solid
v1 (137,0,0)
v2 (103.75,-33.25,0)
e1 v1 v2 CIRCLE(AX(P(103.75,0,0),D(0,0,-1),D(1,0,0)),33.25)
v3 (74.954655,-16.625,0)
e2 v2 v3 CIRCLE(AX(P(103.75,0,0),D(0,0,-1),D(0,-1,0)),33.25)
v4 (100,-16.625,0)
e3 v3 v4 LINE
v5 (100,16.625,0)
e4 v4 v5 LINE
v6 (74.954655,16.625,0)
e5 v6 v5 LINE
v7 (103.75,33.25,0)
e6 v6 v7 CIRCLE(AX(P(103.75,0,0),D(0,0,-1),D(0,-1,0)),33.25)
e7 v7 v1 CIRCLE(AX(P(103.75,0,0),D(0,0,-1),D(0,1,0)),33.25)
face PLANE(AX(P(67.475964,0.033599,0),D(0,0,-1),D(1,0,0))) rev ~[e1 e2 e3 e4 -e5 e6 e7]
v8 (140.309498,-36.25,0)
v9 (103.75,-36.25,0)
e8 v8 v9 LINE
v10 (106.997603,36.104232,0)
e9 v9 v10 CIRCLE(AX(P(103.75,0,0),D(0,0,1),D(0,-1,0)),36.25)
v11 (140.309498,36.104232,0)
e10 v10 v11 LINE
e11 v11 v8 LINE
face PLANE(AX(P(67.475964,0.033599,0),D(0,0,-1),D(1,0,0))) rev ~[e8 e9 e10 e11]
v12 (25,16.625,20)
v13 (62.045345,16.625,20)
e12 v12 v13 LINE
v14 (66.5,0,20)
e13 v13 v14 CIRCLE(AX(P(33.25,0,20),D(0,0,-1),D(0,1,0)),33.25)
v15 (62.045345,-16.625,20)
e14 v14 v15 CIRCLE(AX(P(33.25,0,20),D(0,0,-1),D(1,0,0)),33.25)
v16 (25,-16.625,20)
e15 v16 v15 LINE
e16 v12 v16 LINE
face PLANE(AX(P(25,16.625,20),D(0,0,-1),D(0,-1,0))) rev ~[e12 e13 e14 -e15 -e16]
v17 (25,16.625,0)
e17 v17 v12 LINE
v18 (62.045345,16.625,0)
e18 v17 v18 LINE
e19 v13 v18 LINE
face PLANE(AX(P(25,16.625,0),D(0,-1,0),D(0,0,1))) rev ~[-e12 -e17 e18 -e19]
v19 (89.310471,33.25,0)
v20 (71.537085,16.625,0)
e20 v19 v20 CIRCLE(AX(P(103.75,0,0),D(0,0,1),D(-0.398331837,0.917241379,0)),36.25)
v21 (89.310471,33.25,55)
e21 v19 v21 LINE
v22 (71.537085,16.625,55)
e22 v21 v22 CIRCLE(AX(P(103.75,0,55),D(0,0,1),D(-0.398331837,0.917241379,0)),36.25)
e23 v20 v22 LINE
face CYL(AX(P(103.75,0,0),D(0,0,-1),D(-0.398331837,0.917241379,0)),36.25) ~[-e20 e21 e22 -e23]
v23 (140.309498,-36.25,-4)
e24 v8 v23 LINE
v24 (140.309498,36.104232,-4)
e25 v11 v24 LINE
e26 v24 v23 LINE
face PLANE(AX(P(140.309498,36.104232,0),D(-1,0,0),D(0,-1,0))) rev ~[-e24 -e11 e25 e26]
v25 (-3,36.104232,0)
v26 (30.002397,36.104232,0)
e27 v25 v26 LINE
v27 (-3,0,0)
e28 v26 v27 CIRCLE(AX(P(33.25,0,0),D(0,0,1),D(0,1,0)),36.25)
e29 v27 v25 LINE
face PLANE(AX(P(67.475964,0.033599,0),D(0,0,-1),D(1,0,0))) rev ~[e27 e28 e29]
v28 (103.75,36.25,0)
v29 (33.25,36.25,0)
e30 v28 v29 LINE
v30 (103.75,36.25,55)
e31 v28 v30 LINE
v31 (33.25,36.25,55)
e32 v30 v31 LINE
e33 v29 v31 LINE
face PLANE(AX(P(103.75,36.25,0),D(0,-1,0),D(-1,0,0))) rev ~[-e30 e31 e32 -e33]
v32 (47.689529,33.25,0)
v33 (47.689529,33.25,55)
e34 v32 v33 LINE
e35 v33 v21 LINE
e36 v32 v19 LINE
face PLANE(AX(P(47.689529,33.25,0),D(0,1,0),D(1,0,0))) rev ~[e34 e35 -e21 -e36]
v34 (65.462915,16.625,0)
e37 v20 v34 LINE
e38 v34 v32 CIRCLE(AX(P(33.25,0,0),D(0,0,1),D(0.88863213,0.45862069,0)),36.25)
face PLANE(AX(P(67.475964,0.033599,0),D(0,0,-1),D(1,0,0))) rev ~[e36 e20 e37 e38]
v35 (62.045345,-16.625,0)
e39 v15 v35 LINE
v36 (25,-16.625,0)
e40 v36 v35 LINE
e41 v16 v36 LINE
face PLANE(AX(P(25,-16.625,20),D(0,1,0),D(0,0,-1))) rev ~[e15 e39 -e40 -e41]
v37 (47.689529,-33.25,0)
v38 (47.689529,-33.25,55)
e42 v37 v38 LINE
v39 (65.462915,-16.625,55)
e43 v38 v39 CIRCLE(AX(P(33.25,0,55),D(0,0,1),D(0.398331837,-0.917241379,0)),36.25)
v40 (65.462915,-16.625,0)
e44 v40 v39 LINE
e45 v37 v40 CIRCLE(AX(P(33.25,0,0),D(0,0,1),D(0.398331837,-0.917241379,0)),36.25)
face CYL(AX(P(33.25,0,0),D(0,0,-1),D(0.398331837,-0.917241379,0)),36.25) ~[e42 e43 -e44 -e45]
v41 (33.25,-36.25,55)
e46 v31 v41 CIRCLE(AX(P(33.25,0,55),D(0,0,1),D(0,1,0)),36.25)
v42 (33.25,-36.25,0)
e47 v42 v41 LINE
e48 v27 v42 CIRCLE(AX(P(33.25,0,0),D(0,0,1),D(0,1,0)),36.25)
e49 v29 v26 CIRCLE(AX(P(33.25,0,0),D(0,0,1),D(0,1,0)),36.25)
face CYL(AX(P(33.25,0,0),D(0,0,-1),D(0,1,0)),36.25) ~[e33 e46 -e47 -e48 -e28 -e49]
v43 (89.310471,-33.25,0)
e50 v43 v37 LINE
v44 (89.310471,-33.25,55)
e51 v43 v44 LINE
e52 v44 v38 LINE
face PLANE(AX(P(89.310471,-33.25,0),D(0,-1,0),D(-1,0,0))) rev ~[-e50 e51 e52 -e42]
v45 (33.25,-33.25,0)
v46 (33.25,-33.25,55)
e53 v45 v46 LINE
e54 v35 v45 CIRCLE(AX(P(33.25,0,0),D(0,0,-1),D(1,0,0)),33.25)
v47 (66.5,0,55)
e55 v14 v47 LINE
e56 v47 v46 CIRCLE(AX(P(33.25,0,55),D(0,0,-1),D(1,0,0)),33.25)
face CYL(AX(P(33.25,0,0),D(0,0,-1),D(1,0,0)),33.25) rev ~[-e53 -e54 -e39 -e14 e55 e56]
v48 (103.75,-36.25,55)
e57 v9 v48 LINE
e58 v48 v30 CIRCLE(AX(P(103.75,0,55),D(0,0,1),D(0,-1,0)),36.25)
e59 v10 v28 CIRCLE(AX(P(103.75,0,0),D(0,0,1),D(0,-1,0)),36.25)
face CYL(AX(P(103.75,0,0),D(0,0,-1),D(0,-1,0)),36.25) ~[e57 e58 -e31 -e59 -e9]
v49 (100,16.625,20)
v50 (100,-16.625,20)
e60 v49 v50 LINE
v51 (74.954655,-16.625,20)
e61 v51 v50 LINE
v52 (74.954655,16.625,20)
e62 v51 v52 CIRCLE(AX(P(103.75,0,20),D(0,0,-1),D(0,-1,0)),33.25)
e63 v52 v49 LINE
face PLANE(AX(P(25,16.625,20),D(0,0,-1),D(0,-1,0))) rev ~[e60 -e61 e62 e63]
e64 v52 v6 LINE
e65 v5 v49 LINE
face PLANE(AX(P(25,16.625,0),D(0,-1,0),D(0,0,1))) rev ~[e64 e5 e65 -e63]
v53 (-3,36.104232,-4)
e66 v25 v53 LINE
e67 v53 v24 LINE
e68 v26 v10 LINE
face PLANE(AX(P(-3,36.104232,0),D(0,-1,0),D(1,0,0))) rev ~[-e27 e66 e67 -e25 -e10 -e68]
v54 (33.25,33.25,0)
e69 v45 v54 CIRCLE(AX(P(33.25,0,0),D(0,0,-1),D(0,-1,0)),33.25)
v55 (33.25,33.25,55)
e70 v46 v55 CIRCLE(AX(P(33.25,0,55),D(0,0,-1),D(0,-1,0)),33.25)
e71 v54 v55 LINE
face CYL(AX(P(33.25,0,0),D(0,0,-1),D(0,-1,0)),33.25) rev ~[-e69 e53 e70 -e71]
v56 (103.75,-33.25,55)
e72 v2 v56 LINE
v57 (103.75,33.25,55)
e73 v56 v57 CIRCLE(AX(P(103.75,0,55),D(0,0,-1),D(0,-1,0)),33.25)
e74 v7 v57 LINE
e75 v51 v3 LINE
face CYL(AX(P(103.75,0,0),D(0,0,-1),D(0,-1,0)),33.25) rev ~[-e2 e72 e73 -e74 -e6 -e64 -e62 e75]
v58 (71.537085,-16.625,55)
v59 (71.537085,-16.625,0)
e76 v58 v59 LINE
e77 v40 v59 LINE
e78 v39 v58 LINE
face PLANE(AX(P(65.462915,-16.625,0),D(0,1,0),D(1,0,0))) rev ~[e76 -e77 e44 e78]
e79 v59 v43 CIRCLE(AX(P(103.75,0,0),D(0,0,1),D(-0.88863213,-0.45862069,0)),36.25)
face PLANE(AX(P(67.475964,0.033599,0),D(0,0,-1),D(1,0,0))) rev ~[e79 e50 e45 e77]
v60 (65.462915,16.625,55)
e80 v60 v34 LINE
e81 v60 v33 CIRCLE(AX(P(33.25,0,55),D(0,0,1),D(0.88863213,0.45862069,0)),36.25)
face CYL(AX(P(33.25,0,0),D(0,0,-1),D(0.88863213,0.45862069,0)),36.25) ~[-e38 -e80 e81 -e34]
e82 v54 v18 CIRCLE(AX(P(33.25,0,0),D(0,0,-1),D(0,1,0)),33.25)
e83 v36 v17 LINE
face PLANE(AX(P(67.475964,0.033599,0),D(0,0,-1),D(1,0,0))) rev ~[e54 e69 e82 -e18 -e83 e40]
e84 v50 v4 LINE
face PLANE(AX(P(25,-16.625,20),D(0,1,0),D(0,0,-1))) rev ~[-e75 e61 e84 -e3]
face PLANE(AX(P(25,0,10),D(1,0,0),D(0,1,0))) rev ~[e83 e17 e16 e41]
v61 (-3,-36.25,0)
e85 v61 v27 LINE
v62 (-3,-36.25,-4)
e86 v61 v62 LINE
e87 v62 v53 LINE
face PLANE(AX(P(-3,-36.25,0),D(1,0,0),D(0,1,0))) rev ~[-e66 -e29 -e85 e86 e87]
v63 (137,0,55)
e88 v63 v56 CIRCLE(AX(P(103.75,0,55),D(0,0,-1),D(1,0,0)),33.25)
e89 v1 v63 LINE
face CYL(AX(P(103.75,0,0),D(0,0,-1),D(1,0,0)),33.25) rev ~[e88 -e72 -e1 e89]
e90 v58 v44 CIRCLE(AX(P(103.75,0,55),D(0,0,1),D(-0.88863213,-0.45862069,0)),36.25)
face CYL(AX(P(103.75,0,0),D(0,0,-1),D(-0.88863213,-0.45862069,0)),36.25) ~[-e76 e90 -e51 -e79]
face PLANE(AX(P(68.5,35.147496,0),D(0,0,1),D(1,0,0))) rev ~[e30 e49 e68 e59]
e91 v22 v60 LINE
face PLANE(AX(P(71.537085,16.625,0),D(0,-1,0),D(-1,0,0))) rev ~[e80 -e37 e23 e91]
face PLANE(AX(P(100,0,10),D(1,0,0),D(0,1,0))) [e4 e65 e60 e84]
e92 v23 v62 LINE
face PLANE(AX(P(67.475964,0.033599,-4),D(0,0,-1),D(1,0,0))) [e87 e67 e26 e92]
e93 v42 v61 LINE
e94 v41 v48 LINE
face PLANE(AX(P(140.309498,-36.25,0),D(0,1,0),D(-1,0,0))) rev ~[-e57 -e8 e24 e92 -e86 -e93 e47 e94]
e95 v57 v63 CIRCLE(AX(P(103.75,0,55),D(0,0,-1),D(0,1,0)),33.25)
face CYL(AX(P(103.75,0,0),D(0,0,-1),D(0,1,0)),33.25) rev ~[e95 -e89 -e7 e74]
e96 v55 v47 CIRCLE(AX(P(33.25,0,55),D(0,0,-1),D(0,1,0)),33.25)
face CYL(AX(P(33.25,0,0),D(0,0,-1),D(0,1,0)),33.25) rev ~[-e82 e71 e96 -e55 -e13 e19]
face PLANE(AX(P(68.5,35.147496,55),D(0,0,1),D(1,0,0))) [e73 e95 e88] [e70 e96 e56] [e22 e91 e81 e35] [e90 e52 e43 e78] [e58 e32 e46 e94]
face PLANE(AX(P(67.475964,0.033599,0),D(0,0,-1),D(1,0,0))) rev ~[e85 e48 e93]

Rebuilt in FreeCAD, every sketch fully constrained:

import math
import FreeCAD as App
import Part
import Sketcher
Q = App.Units.Quantity


def add_polygon(sketch, points):
    """Adds a closed chain of lines whose ends are joined by coincident constraints."""
    first, n = sketch.GeometryCount, len(points)
    for a, b in zip(points, points[1:] + points[:1]):
        sketch.addGeometry(Part.LineSegment(App.Vector(*a, 0), App.Vector(*b, 0)), False)
    for i in range(n):
        sketch.addConstraint(Sketcher.Constraint("Coincident", first + i, 2, first + (i + 1) % n, 1))

doc = App.newDocument("Part")
body = doc.addObject("PartDesign::Body", "Body")

# Sketch on YZ plane
sketch1 = body.newObject("Sketcher::SketchObject", "Sketch")
sketch1.AttachmentSupport = (doc.getObject("YZ_Plane"), [""])
sketch1.MapMode = "FlatFace"
sketch1.AttachmentOffset = App.Placement(App.Vector(0, 0, 25), App.Rotation())
add_polygon(sketch1, [(-17, 0), (17, 0), (17, 20), (-17, 20)])  # lines 0-3
sketch1.addConstraint(Sketcher.Constraint("Horizontal", 0))
sketch1.addConstraint(Sketcher.Constraint("Vertical", 1))
sketch1.addConstraint(Sketcher.Constraint("Horizontal", 2))
sketch1.addConstraint(Sketcher.Constraint("Vertical", 3))
sketch1.addConstraint(Sketcher.Constraint("Symmetric", 0, 2, 3, 2, -1, 1))
sketch1.addConstraint(Sketcher.Constraint("DistanceY", 1, 1, 1, 2, Q("20 mm")))
sketch1.addConstraint(Sketcher.Constraint("DistanceX", 0, 1, 0, 2, Q("33.25 mm")))
pad1 = body.newObject("PartDesign::Pad", "Pad")
pad1.Profile = sketch1
pad1.Length = 75

# Sketch on XY plane
sketch2 = body.newObject("Sketcher::SketchObject", "Sketch001")
sketch2.AttachmentSupport = (doc.getObject("XY_Plane"), [""])
sketch2.MapMode = "FlatFace"
sketch2.addGeometry(Part.LineSegment(App.Vector(104, 36, 0), App.Vector(33, 36, 0)), False)
sketch2.addGeometry(Part.ArcOfCircle(Part.Circle(App.Vector(33, 0, 0), App.Vector(0, 0, 1), 36), math.radians(90), math.radians(270)), False)
sketch2.addGeometry(Part.LineSegment(App.Vector(33, -36, 0), App.Vector(104, -36, 0)), False)
sketch2.addGeometry(Part.ArcOfCircle(Part.Circle(App.Vector(104, 0, 0), App.Vector(0, 0, 1), 36), math.radians(-90), math.radians(90)), False)
sketch2.addGeometry(Part.ArcOfCircle(Part.Circle(App.Vector(104, 0, 0), App.Vector(0, 0, 1), 36), math.radians(-153), math.radians(-113)), False)
sketch2.addGeometry(Part.LineSegment(App.Vector(89, -33, 0), App.Vector(48, -33, 0)), False)
sketch2.addGeometry(Part.ArcOfCircle(Part.Circle(App.Vector(33, 0, 0), App.Vector(0, 0, 1), 36), math.radians(-67), math.radians(-27)), False)
sketch2.addGeometry(Part.LineSegment(App.Vector(65, -17, 0), App.Vector(72, -17, 0)), False)
sketch2.addGeometry(Part.ArcOfCircle(Part.Circle(App.Vector(33, 0, 0), App.Vector(0, 0, 1), 33), math.radians(-90), math.radians(0)), False)
sketch2.addGeometry(Part.ArcOfCircle(Part.Circle(App.Vector(33, 0, 0), App.Vector(0, 0, 1), 33), math.radians(90), math.radians(270)), False)
sketch2.addGeometry(Part.ArcOfCircle(Part.Circle(App.Vector(33, 0, 0), App.Vector(0, 0, 1), 33), math.radians(0), math.radians(90)), False)
sketch2.addGeometry(Part.ArcOfCircle(Part.Circle(App.Vector(104, 0, 0), App.Vector(0, 0, 1), 33), math.radians(0), math.radians(90)), False)
sketch2.addGeometry(Part.ArcOfCircle(Part.Circle(App.Vector(104, 0, 0), App.Vector(0, 0, 1), 33), math.radians(-90), math.radians(0)), False)
sketch2.addGeometry(Part.ArcOfCircle(Part.Circle(App.Vector(104, 0, 0), App.Vector(0, 0, 1), 33), math.radians(90), math.radians(270)), False)
sketch2.addGeometry(Part.LineSegment(App.Vector(48, 33, 0), App.Vector(89, 33, 0)), False)
sketch2.addGeometry(Part.ArcOfCircle(Part.Circle(App.Vector(104, 0, 0), App.Vector(0, 0, 1), 36), math.radians(113), math.radians(153)), False)
sketch2.addGeometry(Part.LineSegment(App.Vector(72, 17, 0), App.Vector(65, 17, 0)), False)
sketch2.addGeometry(Part.ArcOfCircle(Part.Circle(App.Vector(33, 0, 0), App.Vector(0, 0, 1), 36), math.radians(27), math.radians(67)), False)
sketch2.addConstraint(Sketcher.Constraint("Tangent", 0, 2, 1, 1))
sketch2.addConstraint(Sketcher.Constraint("Tangent", 1, 2, 2, 1))
sketch2.addConstraint(Sketcher.Constraint("Tangent", 2, 2, 3, 1))
sketch2.addConstraint(Sketcher.Constraint("Tangent", 3, 2, 0, 1))
sketch2.addConstraint(Sketcher.Constraint("Coincident", 4, 2, 5, 1))
sketch2.addConstraint(Sketcher.Constraint("Coincident", 5, 2, 6, 1))
sketch2.addConstraint(Sketcher.Constraint("Coincident", 6, 2, 7, 1))
sketch2.addConstraint(Sketcher.Constraint("Coincident", 7, 2, 4, 1))
sketch2.addConstraint(Sketcher.Constraint("Tangent", 8, 1, 9, 2))
sketch2.addConstraint(Sketcher.Constraint("Tangent", 9, 1, 10, 2))
sketch2.addConstraint(Sketcher.Constraint("Tangent", 10, 1, 8, 2))
sketch2.addConstraint(Sketcher.Constraint("Tangent", 11, 1, 12, 2))
sketch2.addConstraint(Sketcher.Constraint("Tangent", 12, 1, 13, 2))
sketch2.addConstraint(Sketcher.Constraint("Tangent", 13, 1, 11, 2))
sketch2.addConstraint(Sketcher.Constraint("Coincident", 14, 2, 15, 1))
sketch2.addConstraint(Sketcher.Constraint("Coincident", 15, 2, 16, 1))
sketch2.addConstraint(Sketcher.Constraint("Coincident", 16, 2, 17, 1))
sketch2.addConstraint(Sketcher.Constraint("Coincident", 17, 2, 14, 1))
sketch2.addConstraint(Sketcher.Constraint("Horizontal", 0))
sketch2.addConstraint(Sketcher.Constraint("Horizontal", 2))
sketch2.addConstraint(Sketcher.Constraint("Horizontal", 5))
sketch2.addConstraint(Sketcher.Constraint("Horizontal", 7))
sketch2.addConstraint(Sketcher.Constraint("Horizontal", 14))
sketch2.addConstraint(Sketcher.Constraint("Horizontal", 16))
sketch2.addConstraint(Sketcher.Constraint("Coincident", 4, 3, 3, 3))
sketch2.addConstraint(Sketcher.Constraint("Coincident", 6, 3, 1, 3))
sketch2.addConstraint(Sketcher.Constraint("Coincident", 8, 3, 1, 3))
sketch2.addConstraint(Sketcher.Constraint("Coincident", 11, 3, 3, 3))
sketch2.addConstraint(Sketcher.Constraint("Coincident", 15, 3, 3, 3))
sketch2.addConstraint(Sketcher.Constraint("Coincident", 17, 3, 1, 3))
sketch2.addConstraint(Sketcher.Constraint("Equal", 3, 4))
sketch2.addConstraint(Sketcher.Constraint("Equal", 4, 6))
sketch2.addConstraint(Sketcher.Constraint("Equal", 10, 11))
sketch2.addConstraint(Sketcher.Constraint("Equal", 6, 15))
sketch2.addConstraint(Sketcher.Constraint("Equal", 15, 17))
sketch2.addConstraint(Sketcher.Constraint("Symmetric", 8, 1, 9, 1, -1))
sketch2.addConstraint(Sketcher.Constraint("PointOnObject", 10, 1, -1))
sketch2.addConstraint(Sketcher.Constraint("PointOnObject", 11, 1, -1))
sketch2.addConstraint(Sketcher.Constraint("Horizontal", 5, 2, 8, 1))
sketch2.addConstraint(Sketcher.Constraint("Horizontal", 13, 1, 14, 2))
sketch2.addConstraint(Sketcher.Constraint("Vertical", 1, 2, 8, 1))
sketch2.addConstraint(Sketcher.Constraint("Vertical", 3, 2, 12, 1))
sketch2.addConstraint(Sketcher.Constraint("Vertical", 12, 1, 13, 1))
sketch2.addConstraint(Sketcher.Constraint("Vertical", 7, 2, 15, 2))
sketch2.addConstraint(Sketcher.Constraint("Radius", 1, Q("36.25 mm")))
sketch2.addConstraint(Sketcher.Constraint("Radius", 8, Q("33.25 mm")))
sketch2.addConstraint(Sketcher.Constraint("DistanceX", 0, 2, 0, 1, Q("70.5 mm")))
sketch2.addConstraint(Sketcher.Constraint("DistanceX", -1, 1, 11, 1, Q("137 mm")))
sketch2.addConstraint(Sketcher.Constraint("DistanceY", 7, 2, 15, 2, Q("33.25 mm")))
pad2 = body.newObject("PartDesign::Pad", "Pad001")
pad2.Profile = sketch2
pad2.Length = 55

# Sketch on XY plane
sketch3 = body.newObject("Sketcher::SketchObject", "Sketch002")
sketch3.AttachmentSupport = (doc.getObject("XY_Plane"), [""])
sketch3.MapMode = "FlatFace"
add_polygon(sketch3, [(-3, -36), (-3, 36), (140, 36), (140, -36)])  # lines 0-3
sketch3.addConstraint(Sketcher.Constraint("Vertical", 0))
sketch3.addConstraint(Sketcher.Constraint("Horizontal", 1))
sketch3.addConstraint(Sketcher.Constraint("Vertical", 2))
sketch3.addConstraint(Sketcher.Constraint("Horizontal", 3))
sketch3.addConstraint(Sketcher.Constraint("DistanceX", 0, 2, -1, 1, Q("3 mm")))
sketch3.addConstraint(Sketcher.Constraint("DistanceY", 2, 2, -1, 1, Q("36.25 mm")))
sketch3.addConstraint(Sketcher.Constraint("DistanceX", 1, 1, 1, 2, Q("143.309498 mm")))
sketch3.addConstraint(Sketcher.Constraint("DistanceY", 0, 1, 0, 2, Q("72.354232 mm")))
pad3 = body.newObject("PartDesign::Pad", "Pad002")
pad3.Profile = sketch3
pad3.Length = 4
pad3.Reversed = True

doc.recompute()
